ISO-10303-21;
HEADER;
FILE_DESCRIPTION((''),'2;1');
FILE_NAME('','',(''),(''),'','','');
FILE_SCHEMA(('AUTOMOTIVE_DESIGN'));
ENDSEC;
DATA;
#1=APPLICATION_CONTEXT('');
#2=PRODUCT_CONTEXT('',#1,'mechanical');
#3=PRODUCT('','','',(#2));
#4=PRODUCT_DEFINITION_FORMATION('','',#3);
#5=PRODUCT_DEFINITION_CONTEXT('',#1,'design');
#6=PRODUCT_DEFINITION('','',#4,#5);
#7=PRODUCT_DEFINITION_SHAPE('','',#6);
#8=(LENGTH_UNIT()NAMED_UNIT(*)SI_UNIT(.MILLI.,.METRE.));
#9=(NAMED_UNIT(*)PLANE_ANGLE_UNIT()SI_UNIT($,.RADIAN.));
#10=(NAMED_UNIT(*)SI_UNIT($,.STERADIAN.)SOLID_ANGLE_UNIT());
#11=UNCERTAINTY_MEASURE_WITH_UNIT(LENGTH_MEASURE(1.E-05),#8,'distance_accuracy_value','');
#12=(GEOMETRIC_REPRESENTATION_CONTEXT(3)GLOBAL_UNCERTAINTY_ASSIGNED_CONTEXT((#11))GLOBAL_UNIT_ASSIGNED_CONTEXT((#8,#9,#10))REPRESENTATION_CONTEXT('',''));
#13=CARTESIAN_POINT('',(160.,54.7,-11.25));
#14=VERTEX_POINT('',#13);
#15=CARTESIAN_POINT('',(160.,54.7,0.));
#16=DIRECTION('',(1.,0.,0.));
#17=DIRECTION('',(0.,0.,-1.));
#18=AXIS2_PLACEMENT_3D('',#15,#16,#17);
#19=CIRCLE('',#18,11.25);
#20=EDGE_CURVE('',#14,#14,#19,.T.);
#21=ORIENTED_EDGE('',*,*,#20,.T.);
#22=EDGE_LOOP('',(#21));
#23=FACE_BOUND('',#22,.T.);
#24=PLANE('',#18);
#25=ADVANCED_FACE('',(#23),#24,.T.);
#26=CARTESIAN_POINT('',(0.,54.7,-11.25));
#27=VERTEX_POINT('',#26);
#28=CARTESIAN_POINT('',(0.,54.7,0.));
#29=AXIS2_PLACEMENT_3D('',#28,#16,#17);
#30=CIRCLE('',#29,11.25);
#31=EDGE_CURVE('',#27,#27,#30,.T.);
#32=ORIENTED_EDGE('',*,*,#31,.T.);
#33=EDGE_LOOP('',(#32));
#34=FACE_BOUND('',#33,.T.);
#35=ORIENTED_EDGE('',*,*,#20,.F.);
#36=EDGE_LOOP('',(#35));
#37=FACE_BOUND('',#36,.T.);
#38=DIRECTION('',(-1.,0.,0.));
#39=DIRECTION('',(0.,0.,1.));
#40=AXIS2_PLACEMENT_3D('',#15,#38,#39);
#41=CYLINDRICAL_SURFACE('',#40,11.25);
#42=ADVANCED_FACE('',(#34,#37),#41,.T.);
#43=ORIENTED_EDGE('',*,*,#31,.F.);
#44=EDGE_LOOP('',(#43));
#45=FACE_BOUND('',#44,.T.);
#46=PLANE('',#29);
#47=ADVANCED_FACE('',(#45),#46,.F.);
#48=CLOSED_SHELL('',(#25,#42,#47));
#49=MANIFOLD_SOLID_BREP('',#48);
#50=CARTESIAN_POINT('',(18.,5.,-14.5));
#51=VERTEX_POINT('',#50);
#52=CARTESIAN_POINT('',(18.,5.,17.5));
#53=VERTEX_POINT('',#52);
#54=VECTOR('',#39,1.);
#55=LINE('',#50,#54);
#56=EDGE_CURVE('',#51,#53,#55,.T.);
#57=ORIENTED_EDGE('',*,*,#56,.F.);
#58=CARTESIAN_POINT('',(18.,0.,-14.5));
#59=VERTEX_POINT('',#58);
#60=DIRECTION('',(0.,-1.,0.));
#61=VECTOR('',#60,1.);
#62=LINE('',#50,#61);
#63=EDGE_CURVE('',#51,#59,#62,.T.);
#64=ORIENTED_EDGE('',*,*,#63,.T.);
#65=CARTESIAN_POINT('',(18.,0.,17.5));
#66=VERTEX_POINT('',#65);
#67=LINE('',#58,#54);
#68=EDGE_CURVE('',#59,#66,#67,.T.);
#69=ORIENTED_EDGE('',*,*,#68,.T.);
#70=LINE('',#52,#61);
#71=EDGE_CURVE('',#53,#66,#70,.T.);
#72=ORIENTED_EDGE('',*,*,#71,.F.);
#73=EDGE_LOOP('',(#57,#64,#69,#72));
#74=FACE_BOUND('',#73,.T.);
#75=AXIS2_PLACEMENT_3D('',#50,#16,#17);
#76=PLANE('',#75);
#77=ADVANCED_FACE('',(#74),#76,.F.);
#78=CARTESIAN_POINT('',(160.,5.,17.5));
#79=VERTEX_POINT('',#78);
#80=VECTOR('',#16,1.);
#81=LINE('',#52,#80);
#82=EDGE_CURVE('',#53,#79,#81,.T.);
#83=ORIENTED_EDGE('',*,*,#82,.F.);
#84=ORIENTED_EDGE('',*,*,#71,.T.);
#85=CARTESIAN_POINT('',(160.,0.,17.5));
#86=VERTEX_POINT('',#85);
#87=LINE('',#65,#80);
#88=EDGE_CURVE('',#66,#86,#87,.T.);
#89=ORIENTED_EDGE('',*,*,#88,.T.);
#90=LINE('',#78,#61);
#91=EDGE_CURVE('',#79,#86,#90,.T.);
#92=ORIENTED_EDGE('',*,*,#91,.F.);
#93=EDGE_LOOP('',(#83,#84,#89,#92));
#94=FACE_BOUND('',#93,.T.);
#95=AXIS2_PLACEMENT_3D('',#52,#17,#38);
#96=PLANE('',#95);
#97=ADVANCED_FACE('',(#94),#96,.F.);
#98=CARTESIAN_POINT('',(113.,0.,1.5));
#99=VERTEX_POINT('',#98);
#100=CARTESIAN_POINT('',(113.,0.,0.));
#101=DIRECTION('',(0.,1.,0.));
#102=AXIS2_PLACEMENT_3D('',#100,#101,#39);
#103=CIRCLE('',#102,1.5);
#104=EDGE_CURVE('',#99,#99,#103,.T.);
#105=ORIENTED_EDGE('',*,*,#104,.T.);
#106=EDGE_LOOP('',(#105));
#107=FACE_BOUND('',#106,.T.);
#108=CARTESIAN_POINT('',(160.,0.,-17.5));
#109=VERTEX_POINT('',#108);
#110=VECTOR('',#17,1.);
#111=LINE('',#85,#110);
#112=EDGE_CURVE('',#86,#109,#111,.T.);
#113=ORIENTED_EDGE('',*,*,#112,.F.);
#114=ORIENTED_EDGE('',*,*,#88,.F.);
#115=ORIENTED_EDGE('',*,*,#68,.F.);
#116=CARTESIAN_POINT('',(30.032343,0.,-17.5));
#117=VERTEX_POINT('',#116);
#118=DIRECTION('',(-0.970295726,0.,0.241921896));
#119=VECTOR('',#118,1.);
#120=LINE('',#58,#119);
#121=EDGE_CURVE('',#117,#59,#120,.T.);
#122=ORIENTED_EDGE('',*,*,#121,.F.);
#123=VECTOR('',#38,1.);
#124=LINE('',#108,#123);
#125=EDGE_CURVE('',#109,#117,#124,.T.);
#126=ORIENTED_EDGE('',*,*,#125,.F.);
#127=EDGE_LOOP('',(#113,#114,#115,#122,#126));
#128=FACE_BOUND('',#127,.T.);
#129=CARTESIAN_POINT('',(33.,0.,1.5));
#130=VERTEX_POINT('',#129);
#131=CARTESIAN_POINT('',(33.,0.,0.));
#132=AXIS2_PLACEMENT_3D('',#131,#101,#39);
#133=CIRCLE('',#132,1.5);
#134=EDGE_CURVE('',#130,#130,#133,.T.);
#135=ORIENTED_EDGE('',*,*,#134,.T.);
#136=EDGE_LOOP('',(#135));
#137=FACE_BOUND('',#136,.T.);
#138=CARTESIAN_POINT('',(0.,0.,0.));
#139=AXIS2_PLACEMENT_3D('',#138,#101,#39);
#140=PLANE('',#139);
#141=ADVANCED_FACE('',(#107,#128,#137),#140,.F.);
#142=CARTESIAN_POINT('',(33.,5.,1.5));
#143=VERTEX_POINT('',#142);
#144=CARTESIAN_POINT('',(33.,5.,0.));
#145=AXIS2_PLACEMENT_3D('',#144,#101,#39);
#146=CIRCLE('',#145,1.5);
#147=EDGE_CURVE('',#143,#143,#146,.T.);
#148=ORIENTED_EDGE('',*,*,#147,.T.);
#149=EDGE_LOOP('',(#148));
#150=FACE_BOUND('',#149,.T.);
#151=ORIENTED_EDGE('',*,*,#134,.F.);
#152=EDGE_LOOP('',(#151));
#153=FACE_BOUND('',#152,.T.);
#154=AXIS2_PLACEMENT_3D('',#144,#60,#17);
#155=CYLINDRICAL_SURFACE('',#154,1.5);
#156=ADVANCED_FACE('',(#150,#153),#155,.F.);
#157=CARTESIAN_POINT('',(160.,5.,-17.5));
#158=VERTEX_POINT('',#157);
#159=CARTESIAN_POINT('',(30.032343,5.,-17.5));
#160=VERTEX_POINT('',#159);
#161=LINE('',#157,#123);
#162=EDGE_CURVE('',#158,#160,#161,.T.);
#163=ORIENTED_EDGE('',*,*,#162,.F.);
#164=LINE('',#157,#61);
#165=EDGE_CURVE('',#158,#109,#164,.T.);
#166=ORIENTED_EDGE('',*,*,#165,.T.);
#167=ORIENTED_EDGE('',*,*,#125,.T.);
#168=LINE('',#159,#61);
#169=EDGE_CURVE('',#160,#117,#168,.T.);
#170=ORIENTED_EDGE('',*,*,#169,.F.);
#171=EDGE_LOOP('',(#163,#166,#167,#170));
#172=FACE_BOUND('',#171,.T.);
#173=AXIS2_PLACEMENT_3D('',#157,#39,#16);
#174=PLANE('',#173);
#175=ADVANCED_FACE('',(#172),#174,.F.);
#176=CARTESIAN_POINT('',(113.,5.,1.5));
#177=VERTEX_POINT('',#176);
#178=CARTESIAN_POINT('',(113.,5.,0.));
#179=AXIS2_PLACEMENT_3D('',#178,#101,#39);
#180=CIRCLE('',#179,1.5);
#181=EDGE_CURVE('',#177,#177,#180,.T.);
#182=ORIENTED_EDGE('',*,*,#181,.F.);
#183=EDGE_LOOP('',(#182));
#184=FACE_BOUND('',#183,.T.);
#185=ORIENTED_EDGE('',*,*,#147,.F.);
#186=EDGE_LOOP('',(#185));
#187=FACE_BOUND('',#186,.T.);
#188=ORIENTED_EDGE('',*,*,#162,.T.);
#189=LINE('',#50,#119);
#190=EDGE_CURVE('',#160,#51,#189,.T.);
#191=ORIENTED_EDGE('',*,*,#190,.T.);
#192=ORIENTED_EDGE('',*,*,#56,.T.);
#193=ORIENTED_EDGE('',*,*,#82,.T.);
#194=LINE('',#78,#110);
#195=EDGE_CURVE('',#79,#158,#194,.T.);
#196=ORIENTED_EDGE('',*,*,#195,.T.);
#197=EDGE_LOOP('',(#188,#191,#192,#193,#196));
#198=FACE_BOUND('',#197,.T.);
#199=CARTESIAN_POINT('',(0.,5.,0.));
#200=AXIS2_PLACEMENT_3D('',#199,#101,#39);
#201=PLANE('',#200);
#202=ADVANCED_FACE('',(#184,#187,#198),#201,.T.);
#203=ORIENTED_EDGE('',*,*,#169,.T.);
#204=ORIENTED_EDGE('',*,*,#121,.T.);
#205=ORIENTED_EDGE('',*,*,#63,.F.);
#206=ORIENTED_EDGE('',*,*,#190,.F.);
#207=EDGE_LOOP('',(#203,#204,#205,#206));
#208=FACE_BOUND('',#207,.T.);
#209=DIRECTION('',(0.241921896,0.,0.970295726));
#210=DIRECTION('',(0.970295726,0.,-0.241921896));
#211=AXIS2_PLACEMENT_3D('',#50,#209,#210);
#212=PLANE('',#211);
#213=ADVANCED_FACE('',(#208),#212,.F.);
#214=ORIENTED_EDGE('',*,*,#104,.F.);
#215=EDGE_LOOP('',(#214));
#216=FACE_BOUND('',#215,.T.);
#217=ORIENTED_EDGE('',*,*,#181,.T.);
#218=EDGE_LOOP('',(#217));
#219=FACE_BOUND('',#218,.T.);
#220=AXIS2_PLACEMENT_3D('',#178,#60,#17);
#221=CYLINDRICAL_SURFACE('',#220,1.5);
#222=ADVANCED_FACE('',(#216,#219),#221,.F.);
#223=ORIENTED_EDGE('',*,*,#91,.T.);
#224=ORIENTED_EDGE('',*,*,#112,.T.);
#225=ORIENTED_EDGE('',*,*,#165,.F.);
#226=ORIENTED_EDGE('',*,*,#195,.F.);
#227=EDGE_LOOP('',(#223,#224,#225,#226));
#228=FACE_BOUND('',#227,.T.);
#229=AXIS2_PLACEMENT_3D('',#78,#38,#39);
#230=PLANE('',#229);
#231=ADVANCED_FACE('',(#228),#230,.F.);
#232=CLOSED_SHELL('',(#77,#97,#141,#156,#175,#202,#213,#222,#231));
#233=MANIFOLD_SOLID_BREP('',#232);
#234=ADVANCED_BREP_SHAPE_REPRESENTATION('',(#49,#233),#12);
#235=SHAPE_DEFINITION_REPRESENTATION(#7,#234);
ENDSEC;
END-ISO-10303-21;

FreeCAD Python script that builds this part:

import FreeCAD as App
import Part
import Sketcher

V = App.Vector
Q = App.Units.Quantity

doc = App.newDocument("Part")
body = doc.addObject("PartDesign::Body", "Body")

# Sketch on YZ plane
sketch1 = body.newObject("Sketcher::SketchObject", "Sketch")
sketch1.AttachmentSupport = (doc.getObject("YZ_Plane"), [""])
sketch1.MapMode = "FlatFace"
sketch1.addGeometry(Part.Circle(V(55, 0, 0), V(0, 0, 1), 11), False)
sketch1.addConstraint([
    Sketcher.Constraint("PointOnObject", 0, 3, -1),
    Sketcher.Constraint("Diameter", 0, 22.5),
    Sketcher.Constraint("DistanceX", -1, 1, 0, 3, 54.7),
])
pad1 = body.newObject("PartDesign::Pad", "Pad")
pad1.Profile = sketch1
pad1.Length = 160
body2 = doc.addObject("PartDesign::Body", "Body001")

# Sketch on XZ plane
sketch2 = body2.newObject("Sketcher::SketchObject", "Sketch001")
sketch2.AttachmentSupport = (doc.getObject("XZ_Plane001"), [""])
sketch2.MapMode = "FlatFace"
sketch2.addGeometry([
    Part.LineSegment(V(160, -17.5, 0), V(30, -17.5, 0)),  # 0
    Part.LineSegment(V(30, -17.5, 0), V(18, -14.5, 0)),  # 1
    Part.LineSegment(V(18, -14.5, 0), V(18, 17.5, 0)),  # 2
    Part.LineSegment(V(18, 17.5, 0), V(160, 17.5, 0)),  # 3
    Part.LineSegment(V(160, 17.5, 0), V(160, -17.5, 0)),  # 4
    Part.Circle(V(33, 0, 0), V(0, 0, 1), 1.5),  # 5
    Part.Circle(V(113, 0, 0), V(0, 0, 1), 1.5),  # 6
], False)
sketch2.addConstraint([
    Sketcher.Constraint("Coincident", 0, 2, 1, 1),
    Sketcher.Constraint("Coincident", 1, 2, 2, 1),
    Sketcher.Constraint("Coincident", 2, 2, 3, 1),
    Sketcher.Constraint("Coincident", 3, 2, 4, 1),
    Sketcher.Constraint("Coincident", 4, 2, 0, 1),
    Sketcher.Constraint("Horizontal", 0),
    Sketcher.Constraint("Vertical", 2),
    Sketcher.Constraint("Horizontal", 3),
    Sketcher.Constraint("Vertical", 4),
    Sketcher.Constraint("Equal", 5, 6),
    Sketcher.Constraint("PointOnObject", 5, 3, -1),
    Sketcher.Constraint("PointOnObject", 6, 3, -1),
    Sketcher.Constraint("Diameter", 5, 3.0),
    Sketcher.Constraint("DistanceX", 3, 1, 3, 2, 142.0),
    Sketcher.Constraint("DistanceY", 2, 1, 2, 2, 32.0),
    Sketcher.Constraint("DistanceY", 4, 2, 4, 1, 35.0),
    Sketcher.Constraint("Angle", 1, Q("166 deg")),
    Sketcher.Constraint("DistanceX", -1, 1, 5, 3, 33.0),
    Sketcher.Constraint("DistanceX", -1, 1, 6, 3, 113.0),
    Sketcher.Constraint("DistanceX", -1, 1, 1, 2, 18.0),
    Sketcher.Constraint("DistanceY", 0, 2, -1, 1, 17.5),
])
pad2 = body2.newObject("PartDesign::Pad", "Pad001")
pad2.Profile = sketch2
pad2.Length = 5
pad2.Reversed = True

doc.recompute()
